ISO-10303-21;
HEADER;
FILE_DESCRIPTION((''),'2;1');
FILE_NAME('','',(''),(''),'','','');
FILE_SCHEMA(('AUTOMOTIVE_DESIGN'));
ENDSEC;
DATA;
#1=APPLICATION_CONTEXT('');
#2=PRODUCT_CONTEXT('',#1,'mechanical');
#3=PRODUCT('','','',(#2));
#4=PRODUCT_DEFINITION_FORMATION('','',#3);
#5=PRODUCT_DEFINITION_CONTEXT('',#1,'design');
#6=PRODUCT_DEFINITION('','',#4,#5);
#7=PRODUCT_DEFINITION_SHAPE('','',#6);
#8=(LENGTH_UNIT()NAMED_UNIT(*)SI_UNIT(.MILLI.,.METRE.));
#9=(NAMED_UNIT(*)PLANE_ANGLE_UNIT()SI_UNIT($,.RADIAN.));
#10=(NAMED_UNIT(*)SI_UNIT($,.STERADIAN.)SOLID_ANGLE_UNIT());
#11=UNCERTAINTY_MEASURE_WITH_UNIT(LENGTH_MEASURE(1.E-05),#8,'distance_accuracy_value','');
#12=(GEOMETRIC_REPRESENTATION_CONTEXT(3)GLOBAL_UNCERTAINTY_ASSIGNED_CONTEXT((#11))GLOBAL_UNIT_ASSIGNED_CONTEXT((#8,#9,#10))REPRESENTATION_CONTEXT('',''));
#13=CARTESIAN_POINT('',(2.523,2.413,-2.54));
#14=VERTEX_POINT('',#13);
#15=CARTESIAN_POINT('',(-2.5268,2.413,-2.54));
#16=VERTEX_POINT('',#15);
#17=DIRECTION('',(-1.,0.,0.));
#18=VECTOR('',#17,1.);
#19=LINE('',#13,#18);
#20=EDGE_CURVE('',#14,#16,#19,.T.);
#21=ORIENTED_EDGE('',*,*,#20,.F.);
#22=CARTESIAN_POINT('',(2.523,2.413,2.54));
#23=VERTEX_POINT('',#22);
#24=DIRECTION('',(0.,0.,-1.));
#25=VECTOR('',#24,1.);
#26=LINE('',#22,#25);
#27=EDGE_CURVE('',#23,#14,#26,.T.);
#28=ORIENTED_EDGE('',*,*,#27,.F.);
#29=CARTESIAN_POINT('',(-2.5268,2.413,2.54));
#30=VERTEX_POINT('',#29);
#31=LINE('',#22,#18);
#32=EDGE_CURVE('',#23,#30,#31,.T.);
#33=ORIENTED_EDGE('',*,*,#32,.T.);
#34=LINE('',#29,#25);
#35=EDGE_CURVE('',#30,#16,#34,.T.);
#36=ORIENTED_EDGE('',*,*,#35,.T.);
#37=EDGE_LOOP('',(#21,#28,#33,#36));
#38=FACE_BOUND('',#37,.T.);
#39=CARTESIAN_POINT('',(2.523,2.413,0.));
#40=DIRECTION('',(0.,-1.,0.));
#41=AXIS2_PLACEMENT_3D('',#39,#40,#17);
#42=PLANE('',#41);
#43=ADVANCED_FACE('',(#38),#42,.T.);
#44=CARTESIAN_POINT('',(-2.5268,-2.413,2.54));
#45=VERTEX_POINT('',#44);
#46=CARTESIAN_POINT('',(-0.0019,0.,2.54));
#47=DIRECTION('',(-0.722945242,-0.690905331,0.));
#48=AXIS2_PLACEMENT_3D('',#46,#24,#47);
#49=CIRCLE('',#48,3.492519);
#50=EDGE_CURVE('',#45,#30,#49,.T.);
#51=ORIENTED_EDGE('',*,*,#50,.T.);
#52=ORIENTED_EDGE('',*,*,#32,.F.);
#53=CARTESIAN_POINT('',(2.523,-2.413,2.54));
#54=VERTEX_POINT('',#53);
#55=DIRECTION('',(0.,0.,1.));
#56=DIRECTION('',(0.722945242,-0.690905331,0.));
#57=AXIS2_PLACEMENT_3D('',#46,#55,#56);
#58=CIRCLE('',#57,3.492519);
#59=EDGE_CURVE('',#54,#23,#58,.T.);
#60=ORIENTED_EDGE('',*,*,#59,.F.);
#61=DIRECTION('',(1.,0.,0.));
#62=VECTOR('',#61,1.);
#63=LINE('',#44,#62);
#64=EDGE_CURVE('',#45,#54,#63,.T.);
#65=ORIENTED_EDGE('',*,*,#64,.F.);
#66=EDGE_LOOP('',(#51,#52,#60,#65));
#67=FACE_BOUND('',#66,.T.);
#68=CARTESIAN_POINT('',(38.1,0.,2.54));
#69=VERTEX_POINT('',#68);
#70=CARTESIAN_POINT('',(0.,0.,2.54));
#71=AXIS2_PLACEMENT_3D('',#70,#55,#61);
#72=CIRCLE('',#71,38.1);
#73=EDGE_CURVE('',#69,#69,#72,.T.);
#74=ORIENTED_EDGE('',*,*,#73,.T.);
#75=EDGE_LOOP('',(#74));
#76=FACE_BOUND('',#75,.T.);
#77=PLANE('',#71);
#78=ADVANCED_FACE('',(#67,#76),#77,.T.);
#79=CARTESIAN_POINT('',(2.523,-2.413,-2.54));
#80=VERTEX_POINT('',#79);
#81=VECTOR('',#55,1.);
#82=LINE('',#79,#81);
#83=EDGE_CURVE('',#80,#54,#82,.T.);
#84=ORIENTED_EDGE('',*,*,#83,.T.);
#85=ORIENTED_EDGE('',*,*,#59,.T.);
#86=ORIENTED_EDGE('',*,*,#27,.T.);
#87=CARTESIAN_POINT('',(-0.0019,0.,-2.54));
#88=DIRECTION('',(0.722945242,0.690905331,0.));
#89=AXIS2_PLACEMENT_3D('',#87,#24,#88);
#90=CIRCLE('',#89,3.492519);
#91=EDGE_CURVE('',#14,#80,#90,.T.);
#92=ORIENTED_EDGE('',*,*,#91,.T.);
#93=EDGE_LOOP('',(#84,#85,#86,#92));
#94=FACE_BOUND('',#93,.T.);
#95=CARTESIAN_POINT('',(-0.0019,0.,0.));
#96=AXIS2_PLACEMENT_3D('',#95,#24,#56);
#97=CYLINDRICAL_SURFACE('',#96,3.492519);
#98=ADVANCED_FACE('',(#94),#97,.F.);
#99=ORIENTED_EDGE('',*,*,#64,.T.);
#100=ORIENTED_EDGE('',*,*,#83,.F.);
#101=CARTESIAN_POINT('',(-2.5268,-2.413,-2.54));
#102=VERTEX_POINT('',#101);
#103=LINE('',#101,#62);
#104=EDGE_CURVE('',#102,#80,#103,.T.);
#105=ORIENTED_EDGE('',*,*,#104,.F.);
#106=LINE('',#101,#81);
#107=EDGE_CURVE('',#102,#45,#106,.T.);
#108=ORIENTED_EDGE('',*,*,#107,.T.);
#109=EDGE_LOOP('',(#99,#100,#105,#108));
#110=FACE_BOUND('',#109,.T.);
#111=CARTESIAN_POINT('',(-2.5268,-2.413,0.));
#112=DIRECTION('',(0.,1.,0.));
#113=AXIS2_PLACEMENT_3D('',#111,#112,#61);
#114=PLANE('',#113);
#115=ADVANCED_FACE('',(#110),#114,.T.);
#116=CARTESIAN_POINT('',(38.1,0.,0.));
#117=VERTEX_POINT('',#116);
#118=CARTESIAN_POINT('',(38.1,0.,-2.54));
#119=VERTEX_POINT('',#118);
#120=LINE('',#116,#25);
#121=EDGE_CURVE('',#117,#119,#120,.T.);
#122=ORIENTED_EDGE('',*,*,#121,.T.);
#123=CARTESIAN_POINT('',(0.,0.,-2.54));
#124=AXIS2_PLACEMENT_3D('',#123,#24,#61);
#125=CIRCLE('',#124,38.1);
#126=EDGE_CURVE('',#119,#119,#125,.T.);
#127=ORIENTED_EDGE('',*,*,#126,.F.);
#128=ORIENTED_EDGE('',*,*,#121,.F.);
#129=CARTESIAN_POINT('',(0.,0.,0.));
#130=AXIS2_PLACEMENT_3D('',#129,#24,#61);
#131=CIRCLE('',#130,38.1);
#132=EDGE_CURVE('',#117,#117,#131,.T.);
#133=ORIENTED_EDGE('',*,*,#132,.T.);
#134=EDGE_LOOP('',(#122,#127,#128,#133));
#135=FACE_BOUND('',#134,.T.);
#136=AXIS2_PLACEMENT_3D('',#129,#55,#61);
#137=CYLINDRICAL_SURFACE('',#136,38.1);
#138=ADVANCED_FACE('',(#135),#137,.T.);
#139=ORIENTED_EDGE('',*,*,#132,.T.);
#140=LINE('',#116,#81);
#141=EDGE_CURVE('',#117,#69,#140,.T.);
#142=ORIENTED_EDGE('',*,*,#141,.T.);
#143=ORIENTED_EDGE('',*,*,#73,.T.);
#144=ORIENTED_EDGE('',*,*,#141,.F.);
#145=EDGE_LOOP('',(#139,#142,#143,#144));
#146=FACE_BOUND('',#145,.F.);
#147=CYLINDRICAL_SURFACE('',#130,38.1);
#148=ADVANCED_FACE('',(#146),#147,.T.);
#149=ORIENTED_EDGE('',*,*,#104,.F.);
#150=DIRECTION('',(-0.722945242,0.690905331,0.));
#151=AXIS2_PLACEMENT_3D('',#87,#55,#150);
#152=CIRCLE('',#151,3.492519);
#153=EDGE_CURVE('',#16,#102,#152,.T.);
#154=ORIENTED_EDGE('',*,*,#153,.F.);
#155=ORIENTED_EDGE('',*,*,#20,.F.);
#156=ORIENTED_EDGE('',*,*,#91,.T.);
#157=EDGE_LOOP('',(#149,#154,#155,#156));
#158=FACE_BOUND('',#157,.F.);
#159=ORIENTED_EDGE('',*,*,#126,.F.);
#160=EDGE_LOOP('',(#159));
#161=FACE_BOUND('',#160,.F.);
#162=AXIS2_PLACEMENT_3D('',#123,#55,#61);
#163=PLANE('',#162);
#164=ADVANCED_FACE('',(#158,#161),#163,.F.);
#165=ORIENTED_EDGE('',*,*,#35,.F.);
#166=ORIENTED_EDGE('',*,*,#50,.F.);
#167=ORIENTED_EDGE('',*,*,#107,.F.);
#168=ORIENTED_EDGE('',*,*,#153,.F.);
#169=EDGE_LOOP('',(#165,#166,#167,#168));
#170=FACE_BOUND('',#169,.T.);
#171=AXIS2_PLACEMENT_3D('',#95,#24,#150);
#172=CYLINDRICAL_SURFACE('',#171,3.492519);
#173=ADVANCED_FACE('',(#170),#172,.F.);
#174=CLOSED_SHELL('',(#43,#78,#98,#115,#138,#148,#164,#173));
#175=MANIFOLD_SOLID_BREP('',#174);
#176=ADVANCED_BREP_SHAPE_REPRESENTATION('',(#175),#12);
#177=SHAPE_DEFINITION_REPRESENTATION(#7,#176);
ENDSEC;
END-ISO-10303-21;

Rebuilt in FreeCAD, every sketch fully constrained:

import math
import FreeCAD as App
import Part
import Sketcher
from FreeCAD import Vector
Q = App.Units.Quantity

doc = App.newDocument("Part")
body = doc.addObject("PartDesign::Body", "Body")

# Sketch on XY plane
sketch1 = body.newObject("Sketcher::SketchObject", "Sketch")
sketch1.AttachmentSupport = (doc.getObject("XY_Plane"), [""])
sketch1.MapMode = "FlatFace"
sketch1.addGeometry([
    Part.Circle(Vector(0, 0, 0), Vector(0, 0, 1), 38.1),  # 0
    Part.ArcOfCircle(Part.Circle(Vector(0, 0, 0), Vector(0, 0, 1), 3.5), math.radians(-44), math.radians(44)),  # 1
    Part.LineSegment(Vector(2.5, -2.4, 0), Vector(-2.5, -2.4, 0)),  # 2
    Part.ArcOfCircle(Part.Circle(Vector(0, 0, 0), Vector(0, 0, 1), 3.5), math.radians(136), math.radians(224)),  # 3
    Part.LineSegment(Vector(-2.5, 2.4, 0), Vector(2.5, 2.4, 0)),  # 4
], False)
sketch1.addConstraint([
    Sketcher.Constraint("Coincident", 1, 1, 2, 1),
    Sketcher.Constraint("Coincident", 2, 2, 3, 2),
    Sketcher.Constraint("Coincident", 3, 1, 4, 1),
    Sketcher.Constraint("Coincident", 4, 2, 1, 2),
    Sketcher.Constraint("Horizontal", 2),
    Sketcher.Constraint("Horizontal", 4),
    Sketcher.Constraint("Coincident", 0, 3, -1, 1),
    Sketcher.Constraint("Coincident", 3, 3, 1, 3),
    Sketcher.Constraint("Equal", 1, 3),
    Sketcher.Constraint("Symmetric", 2, 2, 3, 1, -1),
    Sketcher.Constraint("Diameter", 0, Q("3 in")),
    Sketcher.Constraint("Radius", 1, Q("0.1375 in")),
    Sketcher.Constraint("DistanceY", 2, 2, 3, 1, Q("0.19 in")),
    Sketcher.Constraint("DistanceX", 1, 3, -1, 1, 0.002),
])
pad1 = body.newObject("PartDesign::Pad", "Pad")
pad1.Profile = sketch1
pad1.Length = Q("0.2 in")
pad1.Midplane = True

doc.recompute()
